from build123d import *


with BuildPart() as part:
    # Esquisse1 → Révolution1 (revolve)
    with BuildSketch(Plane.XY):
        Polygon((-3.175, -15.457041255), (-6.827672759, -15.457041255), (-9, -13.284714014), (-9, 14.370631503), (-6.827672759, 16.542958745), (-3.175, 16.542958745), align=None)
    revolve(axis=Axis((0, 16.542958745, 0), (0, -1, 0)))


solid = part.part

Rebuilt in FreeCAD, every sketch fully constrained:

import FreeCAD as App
import Part
import Sketcher

V = App.Vector


def add_polygon(sketch, points):
    """Adds a closed chain of lines whose ends are joined by coincident constraints."""
    first, n = sketch.GeometryCount, len(points)
    for a, b in zip(points, points[1:] + points[:1]):
        sketch.addGeometry(Part.LineSegment(App.Vector(*a, 0), App.Vector(*b, 0)), False)
    for i in range(n):
        sketch.addConstraint(Sketcher.Constraint("Coincident", first + i, 2, first + (i + 1) % n, 1))

doc = App.newDocument("Part")
body = doc.addObject("PartDesign::Body", "Body")

sketch1 = body.newObject("Sketcher::SketchObject", "Sketch")
sketch1.AttachmentSupport = (doc.getObject("XY_Plane"), [""])
sketch1.MapMode = "FlatFace"
add_polygon(sketch1, [(-6.8, -15.5), (-3.2, -15.5), (-3.2, 16.5), (-6.8, 16.5), (-9, 14.4), (-9, -13.3)])
sketch1.addConstraint([
    Sketcher.Constraint("Horizontal", 0),
    Sketcher.Constraint("Vertical", 1),
    Sketcher.Constraint("Horizontal", 2),
    Sketcher.Constraint("Vertical", 4),
    Sketcher.Constraint("Perpendicular", 3, 5),
    Sketcher.Constraint("Vertical", 2, 2, 5, 2),
    Sketcher.Constraint("Equal", 3, 5),
    Sketcher.Constraint("DistanceY", 1, 1, 1, 2, 32.0),
    Sketcher.Constraint("DistanceX", 3, 2, -1, 1, 9.0),
    Sketcher.Constraint("DistanceX", 0, 2, -1, 1, 3.175),
    Sketcher.Constraint("DistanceX", 0, 1, 0, 2, 3.652673),
    Sketcher.Constraint("DistanceY", 0, 2, -1, 1, 15.457041),
])
revolution = body.newObject("PartDesign::Revolution", "Revolution")
revolution.Profile = sketch1
revolution.ReferenceAxis = (sketch1, ["V_Axis"])
revolution.Angle = 360

doc.recompute()
